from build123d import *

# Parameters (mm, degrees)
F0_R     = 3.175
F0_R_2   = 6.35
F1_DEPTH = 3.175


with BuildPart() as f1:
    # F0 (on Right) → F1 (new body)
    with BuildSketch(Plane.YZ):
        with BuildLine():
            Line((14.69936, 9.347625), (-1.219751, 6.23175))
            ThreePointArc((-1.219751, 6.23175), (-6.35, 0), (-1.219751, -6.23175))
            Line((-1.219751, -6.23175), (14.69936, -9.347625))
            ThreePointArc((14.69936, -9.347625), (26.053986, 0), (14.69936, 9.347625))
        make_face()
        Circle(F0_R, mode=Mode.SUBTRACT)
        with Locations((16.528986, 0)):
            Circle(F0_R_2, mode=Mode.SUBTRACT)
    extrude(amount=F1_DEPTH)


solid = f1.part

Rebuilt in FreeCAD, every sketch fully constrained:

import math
import FreeCAD as App
import Part
import Sketcher
Q = App.Units.Quantity

doc = App.newDocument("Part")
body = doc.addObject("PartDesign::Body", "Body")

sketch1 = body.newObject("Sketcher::SketchObject", "Sketch")
sketch1.AttachmentSupport = (doc.getObject("YZ_Plane"), [""])
sketch1.MapMode = "FlatFace"
sketch1.addGeometry(Part.LineSegment(App.Vector(14.69936, 9.347625, 0), App.Vector(-1.219751, 6.23175, 0)), False)
sketch1.addGeometry(Part.ArcOfCircle(Part.Circle(App.Vector(0, 0, 0), App.Vector(0, 0, 1), 6.35), math.radians(101.074591), math.radians(258.925409)), False)
sketch1.addGeometry(Part.LineSegment(App.Vector(-1.219751, -6.23175, 0), App.Vector(14.69936, -9.347625, 0)), False)
sketch1.addGeometry(Part.ArcOfCircle(Part.Circle(App.Vector(16.528986, 0, 0), App.Vector(0, 0, 1), 9.525), math.radians(-101.074588), math.radians(101.074588)), False)
sketch1.addGeometry(Part.Circle(App.Vector(0, 0, 0), App.Vector(0, 0, 1), 3.175), False)
sketch1.addGeometry(Part.Circle(App.Vector(16.528986, 0, 0), App.Vector(0, 0, 1), 6.35), False)
sketch1.addConstraint(Sketcher.Constraint("Tangent", 0, 2, 1, 1))
sketch1.addConstraint(Sketcher.Constraint("Tangent", 1, 2, 2, 1))
sketch1.addConstraint(Sketcher.Constraint("Tangent", 2, 2, 3, 1))
sketch1.addConstraint(Sketcher.Constraint("Tangent", 3, 2, 0, 1))
sketch1.addConstraint(Sketcher.Constraint("Coincident", 1, 3, -1, 1))
sketch1.addConstraint(Sketcher.Constraint("Coincident", 4, 3, -1, 1))
sketch1.addConstraint(Sketcher.Constraint("Coincident", 5, 3, 3, 3))
sketch1.addConstraint(Sketcher.Constraint("Equal", 1, 5))
sketch1.addConstraint(Sketcher.Constraint("PointOnObject", 3, 3, -1))
sketch1.addConstraint(Sketcher.Constraint("Diameter", 5, Q("0.5 in")))
sketch1.addConstraint(Sketcher.Constraint("Diameter", 4, Q("0.25 in")))
sketch1.addConstraint(Sketcher.Constraint("Radius", 3, Q("0.375 in")))
sketch1.addConstraint(Sketcher.Constraint("DistanceY", 1, 2, 0, 2, 12.4635))
pad1 = body.newObject("PartDesign::Pad", "Pad")
pad1.Profile = sketch1
pad1.Length = Q("0.125 in")

doc.recompute()
